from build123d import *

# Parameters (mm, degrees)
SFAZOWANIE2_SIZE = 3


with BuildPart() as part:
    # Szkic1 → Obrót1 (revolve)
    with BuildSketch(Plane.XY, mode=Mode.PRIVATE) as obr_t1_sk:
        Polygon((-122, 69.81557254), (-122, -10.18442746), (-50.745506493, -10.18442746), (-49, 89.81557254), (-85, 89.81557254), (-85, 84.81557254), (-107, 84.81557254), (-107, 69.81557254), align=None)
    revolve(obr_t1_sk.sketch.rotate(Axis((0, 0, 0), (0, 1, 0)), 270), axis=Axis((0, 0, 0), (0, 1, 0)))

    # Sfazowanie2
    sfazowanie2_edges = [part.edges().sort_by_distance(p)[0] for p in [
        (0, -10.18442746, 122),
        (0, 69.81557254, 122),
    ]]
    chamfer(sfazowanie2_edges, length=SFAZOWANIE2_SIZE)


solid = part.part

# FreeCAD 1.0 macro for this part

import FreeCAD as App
import Part
import Sketcher
from FreeCAD import Vector
Q = App.Units.Quantity


def edges_at(feature, points):
    """Names of the edges that pass closest to the given points."""
    edges = feature.Shape.Edges
    near = lambda p: min(range(len(edges)), key=lambda i: edges[i].distToShape(Part.Vertex(*p))[0])
    return sorted({f"Edge{near(p) + 1}" for p in points})

doc = App.newDocument("Part")
params = doc.addObject("Spreadsheet::Sheet", "Params")
for row, (alias, value) in enumerate([
    ("sketch1_width", "36 mm"),
    ("sketch1_width2", "22 mm"),
    ("sketch1_width3", "15 mm"),
    ("sketch1_height", "80 mm"),
    ("sketch1_height2", "5 mm"),
    ("revolution_angle", "360 deg"),
    ("chamfer_size", "3 mm"),
], start=1):
    params.set(f"A{row}", alias)
    params.set(f"B{row}", "=" + value)
    params.setAlias(f"B{row}", alias)

body = doc.addObject("PartDesign::Body", "Body")

sketch1 = body.newObject("Sketcher::SketchObject", "Sketch")
sketch1.AttachmentSupport = (doc.getObject("XY_Plane"), [""])
sketch1.MapMode = "FlatFace"
sketch1.addGeometry(Part.LineSegment(Vector(-122, 70, 0), Vector(-122, -10, 0)), False)
sketch1.addGeometry(Part.LineSegment(Vector(-122, -10, 0), Vector(-51, -10, 0)), False)
sketch1.addGeometry(Part.LineSegment(Vector(-51, -10, 0), Vector(-49, 90, 0)), False)
sketch1.addGeometry(Part.LineSegment(Vector(-49, 90, 0), Vector(-85, 90, 0)), False)
sketch1.addGeometry(Part.LineSegment(Vector(-85, 90, 0), Vector(-85, 85, 0)), False)
sketch1.addGeometry(Part.LineSegment(Vector(-85, 85, 0), Vector(-107, 85, 0)), False)
sketch1.addGeometry(Part.LineSegment(Vector(-107, 85, 0), Vector(-107, 70, 0)), False)
sketch1.addGeometry(Part.LineSegment(Vector(-107, 70, 0), Vector(-122, 70, 0)), False)
sketch1.addConstraint(Sketcher.Constraint("Coincident", 0, 2, 1, 1))
sketch1.addConstraint(Sketcher.Constraint("Coincident", 1, 2, 2, 1))
sketch1.addConstraint(Sketcher.Constraint("Coincident", 2, 2, 3, 1))
sketch1.addConstraint(Sketcher.Constraint("Coincident", 3, 2, 4, 1))
sketch1.addConstraint(Sketcher.Constraint("Coincident", 4, 2, 5, 1))
sketch1.addConstraint(Sketcher.Constraint("Coincident", 5, 2, 6, 1))
sketch1.addConstraint(Sketcher.Constraint("Coincident", 6, 2, 7, 1))
sketch1.addConstraint(Sketcher.Constraint("Coincident", 7, 2, 0, 1))
sketch1.addConstraint(Sketcher.Constraint("Vertical", 0))
sketch1.addConstraint(Sketcher.Constraint("Horizontal", 1))
sketch1.addConstraint(Sketcher.Constraint("Horizontal", 3))
sketch1.addConstraint(Sketcher.Constraint("Vertical", 4))
sketch1.addConstraint(Sketcher.Constraint("Horizontal", 5))
sketch1.addConstraint(Sketcher.Constraint("Vertical", 6))
sketch1.addConstraint(Sketcher.Constraint("Horizontal", 7))
sketch1.addConstraint(Sketcher.Constraint("Equal", 7, 6))
sketch1.addConstraint(Sketcher.Constraint("DistanceX", 3, 2, 3, 1, Q("36 mm")))
sketch1.addConstraint(Sketcher.Constraint("DistanceX", 5, 2, 5, 1, Q("22 mm")))
sketch1.addConstraint(Sketcher.Constraint("DistanceX", 7, 2, 7, 1, Q("15 mm")))
sketch1.addConstraint(Sketcher.Constraint("DistanceY", 0, 2, 0, 1, Q("80 mm")))
sketch1.addConstraint(Sketcher.Constraint("DistanceY", 4, 2, 4, 1, Q("5 mm")))
sketch1.addConstraint(Sketcher.Constraint("Angle", 2, Q("89 deg")))
sketch1.addConstraint(Sketcher.Constraint("DistanceX", 0, 2, -1, 1, Q("122 mm")))
sketch1.addConstraint(Sketcher.Constraint("DistanceY", 0, 2, -1, 1, Q("10.184427 mm")))
sketch1.setExpression("Constraints[16]", "Params.sketch1_width")
sketch1.setExpression("Constraints[17]", "Params.sketch1_width2")
sketch1.setExpression("Constraints[18]", "Params.sketch1_width3")
sketch1.setExpression("Constraints[19]", "Params.sketch1_height")
sketch1.setExpression("Constraints[20]", "Params.sketch1_height2")
revolution = body.newObject("PartDesign::Revolution", "Revolution")
revolution.Profile = sketch1
revolution.ReferenceAxis = (sketch1, ["V_Axis"])
revolution.setExpression("Angle", "Params.revolution_angle")
doc.recompute()

chamfer = body.newObject("PartDesign::Chamfer", "Chamfer")
chamfer.Base = (revolution, edges_at(revolution, [(0, -10.184, 122), (0, 69.816, 122)]))
chamfer.setExpression("Size", "Params.chamfer_size")

doc.recompute()
